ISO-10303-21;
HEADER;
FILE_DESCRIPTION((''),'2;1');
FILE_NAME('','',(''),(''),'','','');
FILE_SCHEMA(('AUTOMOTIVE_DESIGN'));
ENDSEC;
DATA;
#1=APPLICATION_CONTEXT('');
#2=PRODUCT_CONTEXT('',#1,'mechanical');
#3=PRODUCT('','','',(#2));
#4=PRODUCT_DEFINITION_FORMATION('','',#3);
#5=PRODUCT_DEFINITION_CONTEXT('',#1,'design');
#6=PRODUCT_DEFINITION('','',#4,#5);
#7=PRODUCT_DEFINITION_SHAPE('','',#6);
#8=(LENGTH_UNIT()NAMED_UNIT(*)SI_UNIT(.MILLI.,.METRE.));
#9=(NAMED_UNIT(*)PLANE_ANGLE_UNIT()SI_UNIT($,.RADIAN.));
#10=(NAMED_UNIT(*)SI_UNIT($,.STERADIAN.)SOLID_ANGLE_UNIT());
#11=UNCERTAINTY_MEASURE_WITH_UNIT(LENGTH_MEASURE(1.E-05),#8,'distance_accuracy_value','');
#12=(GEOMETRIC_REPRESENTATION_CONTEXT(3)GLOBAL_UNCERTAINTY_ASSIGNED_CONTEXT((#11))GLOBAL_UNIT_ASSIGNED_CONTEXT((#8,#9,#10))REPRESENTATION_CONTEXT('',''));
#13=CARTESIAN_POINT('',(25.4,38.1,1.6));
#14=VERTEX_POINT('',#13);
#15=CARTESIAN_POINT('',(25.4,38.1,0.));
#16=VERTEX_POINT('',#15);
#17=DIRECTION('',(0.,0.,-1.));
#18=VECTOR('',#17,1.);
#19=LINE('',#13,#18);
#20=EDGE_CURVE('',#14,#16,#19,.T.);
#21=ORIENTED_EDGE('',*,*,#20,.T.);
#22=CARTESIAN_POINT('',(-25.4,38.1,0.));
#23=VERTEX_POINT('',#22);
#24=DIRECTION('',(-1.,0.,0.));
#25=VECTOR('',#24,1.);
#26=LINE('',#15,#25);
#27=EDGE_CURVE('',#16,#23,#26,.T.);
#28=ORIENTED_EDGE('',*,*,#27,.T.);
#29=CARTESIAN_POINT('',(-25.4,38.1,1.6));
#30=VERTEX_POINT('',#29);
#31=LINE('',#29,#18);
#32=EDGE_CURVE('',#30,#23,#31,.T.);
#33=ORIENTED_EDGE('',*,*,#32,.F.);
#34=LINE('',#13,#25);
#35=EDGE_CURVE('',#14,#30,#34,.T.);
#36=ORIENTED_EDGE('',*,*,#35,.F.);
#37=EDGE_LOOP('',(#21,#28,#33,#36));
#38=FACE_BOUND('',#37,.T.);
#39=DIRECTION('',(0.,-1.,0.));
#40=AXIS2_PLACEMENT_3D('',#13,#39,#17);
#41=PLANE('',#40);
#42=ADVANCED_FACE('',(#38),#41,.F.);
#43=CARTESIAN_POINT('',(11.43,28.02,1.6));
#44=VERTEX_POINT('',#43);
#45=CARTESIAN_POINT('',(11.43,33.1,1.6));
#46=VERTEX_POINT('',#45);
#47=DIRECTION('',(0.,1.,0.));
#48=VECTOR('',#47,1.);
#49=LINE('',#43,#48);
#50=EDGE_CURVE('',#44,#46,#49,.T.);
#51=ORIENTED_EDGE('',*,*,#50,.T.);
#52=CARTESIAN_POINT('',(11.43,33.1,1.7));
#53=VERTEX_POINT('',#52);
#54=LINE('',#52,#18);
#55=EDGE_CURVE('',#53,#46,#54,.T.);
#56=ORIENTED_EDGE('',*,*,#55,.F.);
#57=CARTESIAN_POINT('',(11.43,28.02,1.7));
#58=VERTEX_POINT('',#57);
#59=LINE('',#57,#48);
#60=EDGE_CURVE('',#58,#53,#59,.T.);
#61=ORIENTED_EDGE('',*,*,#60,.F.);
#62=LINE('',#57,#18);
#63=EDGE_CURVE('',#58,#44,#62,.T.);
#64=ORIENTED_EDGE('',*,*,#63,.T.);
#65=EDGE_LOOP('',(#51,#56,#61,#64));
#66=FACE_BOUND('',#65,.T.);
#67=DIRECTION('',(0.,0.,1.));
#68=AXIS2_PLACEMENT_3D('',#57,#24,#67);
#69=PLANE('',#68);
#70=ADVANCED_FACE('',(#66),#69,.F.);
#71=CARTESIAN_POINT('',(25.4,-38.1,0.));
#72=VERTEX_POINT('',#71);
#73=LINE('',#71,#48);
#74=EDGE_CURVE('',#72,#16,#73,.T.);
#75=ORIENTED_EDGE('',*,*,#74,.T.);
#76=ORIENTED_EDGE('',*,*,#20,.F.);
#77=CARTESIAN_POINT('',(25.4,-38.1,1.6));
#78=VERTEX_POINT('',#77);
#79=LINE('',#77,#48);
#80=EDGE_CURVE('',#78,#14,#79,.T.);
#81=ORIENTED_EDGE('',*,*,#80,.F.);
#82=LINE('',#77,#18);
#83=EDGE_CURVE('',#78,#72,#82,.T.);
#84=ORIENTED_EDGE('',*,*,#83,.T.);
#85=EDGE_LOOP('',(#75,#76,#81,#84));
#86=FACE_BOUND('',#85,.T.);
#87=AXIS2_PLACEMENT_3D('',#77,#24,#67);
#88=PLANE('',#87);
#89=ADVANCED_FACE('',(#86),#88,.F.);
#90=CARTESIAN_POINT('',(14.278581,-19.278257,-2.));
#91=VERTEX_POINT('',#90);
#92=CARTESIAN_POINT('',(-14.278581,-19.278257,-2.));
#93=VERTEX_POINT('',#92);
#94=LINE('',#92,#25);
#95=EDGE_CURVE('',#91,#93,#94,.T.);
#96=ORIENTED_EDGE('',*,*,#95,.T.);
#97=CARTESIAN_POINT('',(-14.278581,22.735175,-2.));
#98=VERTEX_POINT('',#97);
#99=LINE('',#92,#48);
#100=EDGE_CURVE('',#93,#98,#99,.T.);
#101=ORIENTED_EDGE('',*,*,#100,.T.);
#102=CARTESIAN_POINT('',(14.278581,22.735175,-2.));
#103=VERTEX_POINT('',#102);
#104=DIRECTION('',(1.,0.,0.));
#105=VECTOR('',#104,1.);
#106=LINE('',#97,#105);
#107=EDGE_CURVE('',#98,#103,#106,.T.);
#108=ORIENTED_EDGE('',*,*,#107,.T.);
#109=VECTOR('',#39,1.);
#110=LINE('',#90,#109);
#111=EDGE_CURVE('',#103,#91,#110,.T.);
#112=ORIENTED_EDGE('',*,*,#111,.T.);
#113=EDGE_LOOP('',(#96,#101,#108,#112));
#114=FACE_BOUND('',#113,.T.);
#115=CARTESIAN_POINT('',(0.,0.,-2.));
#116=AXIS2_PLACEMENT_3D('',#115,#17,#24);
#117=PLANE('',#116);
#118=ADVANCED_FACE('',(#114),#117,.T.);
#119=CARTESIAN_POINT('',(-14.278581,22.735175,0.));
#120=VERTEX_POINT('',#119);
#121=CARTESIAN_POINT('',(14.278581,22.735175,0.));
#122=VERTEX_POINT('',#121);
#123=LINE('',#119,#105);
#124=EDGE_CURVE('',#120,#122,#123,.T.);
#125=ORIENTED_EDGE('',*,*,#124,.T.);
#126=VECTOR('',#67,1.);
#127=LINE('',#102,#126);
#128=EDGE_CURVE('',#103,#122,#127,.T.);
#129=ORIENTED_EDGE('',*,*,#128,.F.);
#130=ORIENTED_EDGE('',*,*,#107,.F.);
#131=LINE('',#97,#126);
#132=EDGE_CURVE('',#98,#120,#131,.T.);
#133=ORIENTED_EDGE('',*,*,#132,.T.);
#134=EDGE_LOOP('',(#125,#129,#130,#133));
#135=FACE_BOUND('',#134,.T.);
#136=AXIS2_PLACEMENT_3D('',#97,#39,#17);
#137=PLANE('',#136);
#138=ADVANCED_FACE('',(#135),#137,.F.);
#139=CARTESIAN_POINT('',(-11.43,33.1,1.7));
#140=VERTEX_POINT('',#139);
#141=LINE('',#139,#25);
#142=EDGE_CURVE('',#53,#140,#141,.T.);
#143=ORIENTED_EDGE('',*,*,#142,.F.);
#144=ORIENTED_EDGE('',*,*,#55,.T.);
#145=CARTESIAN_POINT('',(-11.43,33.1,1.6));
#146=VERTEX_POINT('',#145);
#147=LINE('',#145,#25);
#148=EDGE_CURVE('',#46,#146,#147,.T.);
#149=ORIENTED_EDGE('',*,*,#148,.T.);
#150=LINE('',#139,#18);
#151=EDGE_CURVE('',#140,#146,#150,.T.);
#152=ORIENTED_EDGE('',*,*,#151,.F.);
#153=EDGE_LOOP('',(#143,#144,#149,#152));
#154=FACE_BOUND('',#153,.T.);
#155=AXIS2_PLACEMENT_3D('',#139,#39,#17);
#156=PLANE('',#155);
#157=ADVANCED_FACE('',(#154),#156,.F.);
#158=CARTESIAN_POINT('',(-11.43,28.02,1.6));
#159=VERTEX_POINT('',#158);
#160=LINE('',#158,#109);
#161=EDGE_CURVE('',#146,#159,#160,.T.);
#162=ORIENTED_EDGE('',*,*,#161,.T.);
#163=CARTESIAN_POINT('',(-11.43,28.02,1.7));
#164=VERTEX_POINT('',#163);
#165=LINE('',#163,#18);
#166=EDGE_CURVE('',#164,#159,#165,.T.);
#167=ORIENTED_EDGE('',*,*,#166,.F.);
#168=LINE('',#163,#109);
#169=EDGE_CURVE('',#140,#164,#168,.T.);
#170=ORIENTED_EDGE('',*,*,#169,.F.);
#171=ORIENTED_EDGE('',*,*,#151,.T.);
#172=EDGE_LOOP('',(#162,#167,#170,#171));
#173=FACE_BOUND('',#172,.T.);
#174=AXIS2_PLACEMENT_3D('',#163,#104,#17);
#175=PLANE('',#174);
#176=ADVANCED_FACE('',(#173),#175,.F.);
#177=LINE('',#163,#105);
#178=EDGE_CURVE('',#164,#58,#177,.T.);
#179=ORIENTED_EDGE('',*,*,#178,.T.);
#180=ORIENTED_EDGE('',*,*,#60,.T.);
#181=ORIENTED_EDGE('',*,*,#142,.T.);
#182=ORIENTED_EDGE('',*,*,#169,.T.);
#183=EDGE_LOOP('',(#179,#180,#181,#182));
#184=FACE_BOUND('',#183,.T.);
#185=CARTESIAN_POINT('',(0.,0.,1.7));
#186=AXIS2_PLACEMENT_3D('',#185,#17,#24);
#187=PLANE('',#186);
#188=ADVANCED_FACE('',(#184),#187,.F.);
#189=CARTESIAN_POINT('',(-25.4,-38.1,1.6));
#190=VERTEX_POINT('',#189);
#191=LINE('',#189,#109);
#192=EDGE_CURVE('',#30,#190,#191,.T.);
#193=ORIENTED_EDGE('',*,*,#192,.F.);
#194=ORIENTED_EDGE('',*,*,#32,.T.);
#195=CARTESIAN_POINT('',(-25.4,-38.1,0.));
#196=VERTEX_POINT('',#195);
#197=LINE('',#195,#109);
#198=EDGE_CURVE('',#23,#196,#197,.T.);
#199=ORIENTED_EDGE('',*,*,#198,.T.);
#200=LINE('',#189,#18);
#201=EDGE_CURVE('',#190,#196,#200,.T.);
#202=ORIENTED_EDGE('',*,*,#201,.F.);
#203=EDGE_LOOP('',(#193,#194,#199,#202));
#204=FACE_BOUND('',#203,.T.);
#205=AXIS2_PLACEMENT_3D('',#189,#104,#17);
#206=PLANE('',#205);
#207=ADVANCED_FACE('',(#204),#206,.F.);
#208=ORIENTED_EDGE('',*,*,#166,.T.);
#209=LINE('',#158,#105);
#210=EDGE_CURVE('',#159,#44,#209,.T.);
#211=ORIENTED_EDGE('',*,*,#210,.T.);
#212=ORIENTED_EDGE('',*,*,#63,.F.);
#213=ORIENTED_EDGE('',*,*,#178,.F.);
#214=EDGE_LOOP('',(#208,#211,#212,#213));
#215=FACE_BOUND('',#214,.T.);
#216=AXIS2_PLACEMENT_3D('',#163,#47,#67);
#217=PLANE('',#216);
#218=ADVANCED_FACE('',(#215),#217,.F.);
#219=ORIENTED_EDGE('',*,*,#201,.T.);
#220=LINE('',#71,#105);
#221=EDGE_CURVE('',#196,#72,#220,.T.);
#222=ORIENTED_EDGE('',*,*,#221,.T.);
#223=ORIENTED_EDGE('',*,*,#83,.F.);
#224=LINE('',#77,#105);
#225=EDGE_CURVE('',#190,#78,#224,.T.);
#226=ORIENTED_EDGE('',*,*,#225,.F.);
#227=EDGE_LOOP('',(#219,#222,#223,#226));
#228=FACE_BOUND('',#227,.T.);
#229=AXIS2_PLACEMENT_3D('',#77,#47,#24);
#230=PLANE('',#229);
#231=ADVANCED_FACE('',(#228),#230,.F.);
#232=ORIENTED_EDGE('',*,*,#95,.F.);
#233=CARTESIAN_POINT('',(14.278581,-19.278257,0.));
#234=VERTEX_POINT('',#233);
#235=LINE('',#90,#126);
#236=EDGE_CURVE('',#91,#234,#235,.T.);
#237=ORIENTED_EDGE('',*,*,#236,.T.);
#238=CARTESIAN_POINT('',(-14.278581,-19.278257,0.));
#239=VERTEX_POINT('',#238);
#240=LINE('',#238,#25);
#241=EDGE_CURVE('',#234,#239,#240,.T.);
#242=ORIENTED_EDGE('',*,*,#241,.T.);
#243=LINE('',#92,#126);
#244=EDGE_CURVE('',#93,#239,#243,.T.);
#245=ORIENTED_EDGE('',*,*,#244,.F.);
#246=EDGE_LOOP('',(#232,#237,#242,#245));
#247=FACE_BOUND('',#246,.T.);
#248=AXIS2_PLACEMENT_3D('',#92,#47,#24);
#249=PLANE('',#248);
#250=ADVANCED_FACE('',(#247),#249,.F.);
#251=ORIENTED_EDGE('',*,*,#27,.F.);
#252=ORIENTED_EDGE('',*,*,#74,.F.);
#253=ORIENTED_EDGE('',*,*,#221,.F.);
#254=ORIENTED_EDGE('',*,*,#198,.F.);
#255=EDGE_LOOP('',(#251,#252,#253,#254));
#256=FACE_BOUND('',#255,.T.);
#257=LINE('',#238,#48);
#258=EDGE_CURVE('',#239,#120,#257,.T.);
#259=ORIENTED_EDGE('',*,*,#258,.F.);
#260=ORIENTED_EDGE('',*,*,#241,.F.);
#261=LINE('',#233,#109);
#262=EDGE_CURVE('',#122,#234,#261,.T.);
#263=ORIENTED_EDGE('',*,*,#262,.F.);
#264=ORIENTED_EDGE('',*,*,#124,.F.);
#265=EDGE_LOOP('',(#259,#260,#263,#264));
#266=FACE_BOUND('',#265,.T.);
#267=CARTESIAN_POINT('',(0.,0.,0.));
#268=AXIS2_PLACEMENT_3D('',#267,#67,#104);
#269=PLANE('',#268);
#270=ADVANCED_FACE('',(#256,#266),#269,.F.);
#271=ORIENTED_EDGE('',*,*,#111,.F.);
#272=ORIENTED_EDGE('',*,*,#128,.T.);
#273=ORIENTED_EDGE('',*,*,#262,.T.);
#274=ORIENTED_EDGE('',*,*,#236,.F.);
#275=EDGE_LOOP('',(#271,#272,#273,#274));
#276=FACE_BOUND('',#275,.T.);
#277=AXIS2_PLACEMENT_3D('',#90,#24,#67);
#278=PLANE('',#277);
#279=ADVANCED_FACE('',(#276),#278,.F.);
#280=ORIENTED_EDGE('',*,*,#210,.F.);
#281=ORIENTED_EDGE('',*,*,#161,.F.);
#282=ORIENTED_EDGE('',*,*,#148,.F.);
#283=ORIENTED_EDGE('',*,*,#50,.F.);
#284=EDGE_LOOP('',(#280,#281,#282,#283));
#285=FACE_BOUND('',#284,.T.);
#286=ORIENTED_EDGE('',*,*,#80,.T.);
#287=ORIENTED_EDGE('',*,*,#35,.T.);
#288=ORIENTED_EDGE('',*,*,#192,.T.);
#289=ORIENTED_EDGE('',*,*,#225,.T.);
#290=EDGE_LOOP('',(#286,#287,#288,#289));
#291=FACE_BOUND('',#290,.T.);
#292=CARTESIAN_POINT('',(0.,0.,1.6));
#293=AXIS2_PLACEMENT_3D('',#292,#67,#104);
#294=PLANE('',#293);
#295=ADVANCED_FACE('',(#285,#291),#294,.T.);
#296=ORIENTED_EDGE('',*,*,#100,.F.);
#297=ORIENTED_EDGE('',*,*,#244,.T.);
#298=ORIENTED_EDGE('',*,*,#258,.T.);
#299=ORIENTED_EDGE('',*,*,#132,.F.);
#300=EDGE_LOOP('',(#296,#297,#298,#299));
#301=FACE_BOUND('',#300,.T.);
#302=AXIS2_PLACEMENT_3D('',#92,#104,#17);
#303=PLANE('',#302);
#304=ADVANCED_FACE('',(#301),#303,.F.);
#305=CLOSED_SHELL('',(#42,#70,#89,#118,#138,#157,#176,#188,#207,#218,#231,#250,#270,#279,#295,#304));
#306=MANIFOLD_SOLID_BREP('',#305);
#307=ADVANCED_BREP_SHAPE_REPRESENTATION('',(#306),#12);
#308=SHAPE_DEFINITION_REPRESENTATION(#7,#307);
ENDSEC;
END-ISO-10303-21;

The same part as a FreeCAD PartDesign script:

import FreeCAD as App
import Part
import Sketcher
Q = App.Units.Quantity

doc = App.newDocument("Part")
params = doc.addObject("Spreadsheet::Sheet", "Params")
for row, (alias, value) in enumerate([
    ("sketch1_width", "2 in"),
    ("sketch1_height", "3 in"),
    ("pad1_length", "1.6 mm"),
    ("sketch2_width", "0.9 in"),
    ("sketch2_height", "0.2 in"),
    ("pad2_length", "0.1 mm"),
    ("pad3_length", "2 mm"),
], start=1):
    params.set(f"A{row}", alias)
    params.set(f"B{row}", "=" + value)
    params.setAlias(f"B{row}", alias)

body = doc.addObject("PartDesign::Body", "Body")

sketch1 = doc.addObject("Sketcher::SketchObject", "Sketch")
body.addObject(sketch1)
sketch1.AttachmentSupport = (doc.XY_Plane, [""])
sketch1.MapMode = "FlatFace"
sketch1.addGeometry([
    Part.LineSegment(App.Vector(-25.4, 38.1, 0), App.Vector(-25.4, -38.1, 0)),
    Part.LineSegment(App.Vector(-25.4, -38.1, 0), App.Vector(25.4, -38.1, 0)),
    Part.LineSegment(App.Vector(25.4, -38.1, 0), App.Vector(25.4, 38.1, 0)),
    Part.LineSegment(App.Vector(25.4, 38.1, 0), App.Vector(-25.4, 38.1, 0)),
], False)
sketch1.addConstraint([
    Sketcher.Constraint("Coincident", 0, 2, 1, 1),
    Sketcher.Constraint("Coincident", 1, 2, 2, 1),
    Sketcher.Constraint("Coincident", 2, 2, 3, 1),
    Sketcher.Constraint("Coincident", 3, 2, 0, 1),
    Sketcher.Constraint("Vertical", 0),
    Sketcher.Constraint("Horizontal", 1),
    Sketcher.Constraint("Vertical", 2),
    Sketcher.Constraint("Horizontal", 3),
    Sketcher.Constraint("Symmetric", 0, 2, 2, 2, -1, 1),
    Sketcher.Constraint("DistanceX", 1, 1, 1, 2, Q("2 in")),
    Sketcher.Constraint("DistanceY", 0, 2, 0, 1, Q("3 in")),
])
sketch1.setExpression("Constraints[9]", "Params.sketch1_width")
sketch1.setExpression("Constraints[10]", "Params.sketch1_height")
pad1 = doc.addObject("PartDesign::Pad", "Pad")
body.addObject(pad1)
pad1.Profile = sketch1
pad1.setExpression("Length", "Params.pad1_length")

sketch2 = doc.addObject("Sketcher::SketchObject", "Sketch001")
body.addObject(sketch2)
sketch2.AttachmentSupport = (doc.XY_Plane, [""])
sketch2.MapMode = "FlatFace"
sketch2.AttachmentOffset = App.Placement(App.Vector(0, 0, 1.6), App.Rotation())
sketch2.addGeometry([
    Part.LineSegment(App.Vector(-11.43, 33.1, 0), App.Vector(-11.43, 28.02, 0)),
    Part.LineSegment(App.Vector(-11.43, 28.02, 0), App.Vector(11.43, 28.02, 0)),
    Part.LineSegment(App.Vector(11.43, 28.02, 0), App.Vector(11.43, 33.1, 0)),
    Part.LineSegment(App.Vector(11.43, 33.1, 0), App.Vector(-11.43, 33.1, 0)),
], False)
sketch2.addConstraint([
    Sketcher.Constraint("Coincident", 0, 2, 1, 1),
    Sketcher.Constraint("Coincident", 1, 2, 2, 1),
    Sketcher.Constraint("Coincident", 2, 2, 3, 1),
    Sketcher.Constraint("Coincident", 3, 2, 0, 1),
    Sketcher.Constraint("Vertical", 0),
    Sketcher.Constraint("Horizontal", 1),
    Sketcher.Constraint("Vertical", 2),
    Sketcher.Constraint("Horizontal", 3),
    Sketcher.Constraint("DistanceX", 1, 1, 1, 2, Q("0.9 in")),
    Sketcher.Constraint("DistanceY", 0, 2, 0, 1, Q("0.2 in")),
    Sketcher.Constraint("DistanceX", 0, 2, -1, 1, Q("0.45 in")),
    Sketcher.Constraint("DistanceY", -1, 1, 0, 2, 28.02),
])
sketch2.setExpression("Constraints[8]", "Params.sketch2_width")
sketch2.setExpression("Constraints[9]", "Params.sketch2_height")
pad2 = doc.addObject("PartDesign::Pad", "Pad001")
body.addObject(pad2)
pad2.Profile = sketch2
pad2.setExpression("Length", "Params.pad2_length")

sketch3 = doc.addObject("Sketcher::SketchObject", "Sketch002")
body.addObject(sketch3)
sketch3.AttachmentSupport = (doc.XY_Plane, [""])
sketch3.MapMode = "FlatFace"
sketch3.addGeometry([
    Part.LineSegment(App.Vector(14.278581, 22.735175, 0), App.Vector(14.278581, -19.278257, 0)),
    Part.LineSegment(App.Vector(14.278581, -19.278257, 0), App.Vector(-14.278581, -19.278257, 0)),
    Part.LineSegment(App.Vector(-14.278581, -19.278257, 0), App.Vector(-14.278581, 22.735175, 0)),
    Part.LineSegment(App.Vector(-14.278581, 22.735175, 0), App.Vector(14.278581, 22.735175, 0)),
], False)
sketch3.addConstraint([
    Sketcher.Constraint("Coincident", 0, 2, 1, 1),
    Sketcher.Constraint("Coincident", 1, 2, 2, 1),
    Sketcher.Constraint("Coincident", 2, 2, 3, 1),
    Sketcher.Constraint("Coincident", 3, 2, 0, 1),
    Sketcher.Constraint("Vertical", 0),
    Sketcher.Constraint("Horizontal", 1),
    Sketcher.Constraint("Vertical", 2),
    Sketcher.Constraint("Horizontal", 3),
    Sketcher.Constraint("DistanceX", 1, 2, 1, 1, 28.557162),
    Sketcher.Constraint("DistanceY", 0, 2, 0, 1, 42.013432),
    Sketcher.Constraint("DistanceX", -1, 1, 0, 2, 14.278581),
    Sketcher.Constraint("DistanceY", 0, 2, -1, 1, 19.278257),
])
pad3 = doc.addObject("PartDesign::Pad", "Pad002")
body.addObject(pad3)
pad3.Profile = sketch3
pad3.setExpression("Length", "Params.pad3_length")
pad3.Reversed = True

doc.recompute()
